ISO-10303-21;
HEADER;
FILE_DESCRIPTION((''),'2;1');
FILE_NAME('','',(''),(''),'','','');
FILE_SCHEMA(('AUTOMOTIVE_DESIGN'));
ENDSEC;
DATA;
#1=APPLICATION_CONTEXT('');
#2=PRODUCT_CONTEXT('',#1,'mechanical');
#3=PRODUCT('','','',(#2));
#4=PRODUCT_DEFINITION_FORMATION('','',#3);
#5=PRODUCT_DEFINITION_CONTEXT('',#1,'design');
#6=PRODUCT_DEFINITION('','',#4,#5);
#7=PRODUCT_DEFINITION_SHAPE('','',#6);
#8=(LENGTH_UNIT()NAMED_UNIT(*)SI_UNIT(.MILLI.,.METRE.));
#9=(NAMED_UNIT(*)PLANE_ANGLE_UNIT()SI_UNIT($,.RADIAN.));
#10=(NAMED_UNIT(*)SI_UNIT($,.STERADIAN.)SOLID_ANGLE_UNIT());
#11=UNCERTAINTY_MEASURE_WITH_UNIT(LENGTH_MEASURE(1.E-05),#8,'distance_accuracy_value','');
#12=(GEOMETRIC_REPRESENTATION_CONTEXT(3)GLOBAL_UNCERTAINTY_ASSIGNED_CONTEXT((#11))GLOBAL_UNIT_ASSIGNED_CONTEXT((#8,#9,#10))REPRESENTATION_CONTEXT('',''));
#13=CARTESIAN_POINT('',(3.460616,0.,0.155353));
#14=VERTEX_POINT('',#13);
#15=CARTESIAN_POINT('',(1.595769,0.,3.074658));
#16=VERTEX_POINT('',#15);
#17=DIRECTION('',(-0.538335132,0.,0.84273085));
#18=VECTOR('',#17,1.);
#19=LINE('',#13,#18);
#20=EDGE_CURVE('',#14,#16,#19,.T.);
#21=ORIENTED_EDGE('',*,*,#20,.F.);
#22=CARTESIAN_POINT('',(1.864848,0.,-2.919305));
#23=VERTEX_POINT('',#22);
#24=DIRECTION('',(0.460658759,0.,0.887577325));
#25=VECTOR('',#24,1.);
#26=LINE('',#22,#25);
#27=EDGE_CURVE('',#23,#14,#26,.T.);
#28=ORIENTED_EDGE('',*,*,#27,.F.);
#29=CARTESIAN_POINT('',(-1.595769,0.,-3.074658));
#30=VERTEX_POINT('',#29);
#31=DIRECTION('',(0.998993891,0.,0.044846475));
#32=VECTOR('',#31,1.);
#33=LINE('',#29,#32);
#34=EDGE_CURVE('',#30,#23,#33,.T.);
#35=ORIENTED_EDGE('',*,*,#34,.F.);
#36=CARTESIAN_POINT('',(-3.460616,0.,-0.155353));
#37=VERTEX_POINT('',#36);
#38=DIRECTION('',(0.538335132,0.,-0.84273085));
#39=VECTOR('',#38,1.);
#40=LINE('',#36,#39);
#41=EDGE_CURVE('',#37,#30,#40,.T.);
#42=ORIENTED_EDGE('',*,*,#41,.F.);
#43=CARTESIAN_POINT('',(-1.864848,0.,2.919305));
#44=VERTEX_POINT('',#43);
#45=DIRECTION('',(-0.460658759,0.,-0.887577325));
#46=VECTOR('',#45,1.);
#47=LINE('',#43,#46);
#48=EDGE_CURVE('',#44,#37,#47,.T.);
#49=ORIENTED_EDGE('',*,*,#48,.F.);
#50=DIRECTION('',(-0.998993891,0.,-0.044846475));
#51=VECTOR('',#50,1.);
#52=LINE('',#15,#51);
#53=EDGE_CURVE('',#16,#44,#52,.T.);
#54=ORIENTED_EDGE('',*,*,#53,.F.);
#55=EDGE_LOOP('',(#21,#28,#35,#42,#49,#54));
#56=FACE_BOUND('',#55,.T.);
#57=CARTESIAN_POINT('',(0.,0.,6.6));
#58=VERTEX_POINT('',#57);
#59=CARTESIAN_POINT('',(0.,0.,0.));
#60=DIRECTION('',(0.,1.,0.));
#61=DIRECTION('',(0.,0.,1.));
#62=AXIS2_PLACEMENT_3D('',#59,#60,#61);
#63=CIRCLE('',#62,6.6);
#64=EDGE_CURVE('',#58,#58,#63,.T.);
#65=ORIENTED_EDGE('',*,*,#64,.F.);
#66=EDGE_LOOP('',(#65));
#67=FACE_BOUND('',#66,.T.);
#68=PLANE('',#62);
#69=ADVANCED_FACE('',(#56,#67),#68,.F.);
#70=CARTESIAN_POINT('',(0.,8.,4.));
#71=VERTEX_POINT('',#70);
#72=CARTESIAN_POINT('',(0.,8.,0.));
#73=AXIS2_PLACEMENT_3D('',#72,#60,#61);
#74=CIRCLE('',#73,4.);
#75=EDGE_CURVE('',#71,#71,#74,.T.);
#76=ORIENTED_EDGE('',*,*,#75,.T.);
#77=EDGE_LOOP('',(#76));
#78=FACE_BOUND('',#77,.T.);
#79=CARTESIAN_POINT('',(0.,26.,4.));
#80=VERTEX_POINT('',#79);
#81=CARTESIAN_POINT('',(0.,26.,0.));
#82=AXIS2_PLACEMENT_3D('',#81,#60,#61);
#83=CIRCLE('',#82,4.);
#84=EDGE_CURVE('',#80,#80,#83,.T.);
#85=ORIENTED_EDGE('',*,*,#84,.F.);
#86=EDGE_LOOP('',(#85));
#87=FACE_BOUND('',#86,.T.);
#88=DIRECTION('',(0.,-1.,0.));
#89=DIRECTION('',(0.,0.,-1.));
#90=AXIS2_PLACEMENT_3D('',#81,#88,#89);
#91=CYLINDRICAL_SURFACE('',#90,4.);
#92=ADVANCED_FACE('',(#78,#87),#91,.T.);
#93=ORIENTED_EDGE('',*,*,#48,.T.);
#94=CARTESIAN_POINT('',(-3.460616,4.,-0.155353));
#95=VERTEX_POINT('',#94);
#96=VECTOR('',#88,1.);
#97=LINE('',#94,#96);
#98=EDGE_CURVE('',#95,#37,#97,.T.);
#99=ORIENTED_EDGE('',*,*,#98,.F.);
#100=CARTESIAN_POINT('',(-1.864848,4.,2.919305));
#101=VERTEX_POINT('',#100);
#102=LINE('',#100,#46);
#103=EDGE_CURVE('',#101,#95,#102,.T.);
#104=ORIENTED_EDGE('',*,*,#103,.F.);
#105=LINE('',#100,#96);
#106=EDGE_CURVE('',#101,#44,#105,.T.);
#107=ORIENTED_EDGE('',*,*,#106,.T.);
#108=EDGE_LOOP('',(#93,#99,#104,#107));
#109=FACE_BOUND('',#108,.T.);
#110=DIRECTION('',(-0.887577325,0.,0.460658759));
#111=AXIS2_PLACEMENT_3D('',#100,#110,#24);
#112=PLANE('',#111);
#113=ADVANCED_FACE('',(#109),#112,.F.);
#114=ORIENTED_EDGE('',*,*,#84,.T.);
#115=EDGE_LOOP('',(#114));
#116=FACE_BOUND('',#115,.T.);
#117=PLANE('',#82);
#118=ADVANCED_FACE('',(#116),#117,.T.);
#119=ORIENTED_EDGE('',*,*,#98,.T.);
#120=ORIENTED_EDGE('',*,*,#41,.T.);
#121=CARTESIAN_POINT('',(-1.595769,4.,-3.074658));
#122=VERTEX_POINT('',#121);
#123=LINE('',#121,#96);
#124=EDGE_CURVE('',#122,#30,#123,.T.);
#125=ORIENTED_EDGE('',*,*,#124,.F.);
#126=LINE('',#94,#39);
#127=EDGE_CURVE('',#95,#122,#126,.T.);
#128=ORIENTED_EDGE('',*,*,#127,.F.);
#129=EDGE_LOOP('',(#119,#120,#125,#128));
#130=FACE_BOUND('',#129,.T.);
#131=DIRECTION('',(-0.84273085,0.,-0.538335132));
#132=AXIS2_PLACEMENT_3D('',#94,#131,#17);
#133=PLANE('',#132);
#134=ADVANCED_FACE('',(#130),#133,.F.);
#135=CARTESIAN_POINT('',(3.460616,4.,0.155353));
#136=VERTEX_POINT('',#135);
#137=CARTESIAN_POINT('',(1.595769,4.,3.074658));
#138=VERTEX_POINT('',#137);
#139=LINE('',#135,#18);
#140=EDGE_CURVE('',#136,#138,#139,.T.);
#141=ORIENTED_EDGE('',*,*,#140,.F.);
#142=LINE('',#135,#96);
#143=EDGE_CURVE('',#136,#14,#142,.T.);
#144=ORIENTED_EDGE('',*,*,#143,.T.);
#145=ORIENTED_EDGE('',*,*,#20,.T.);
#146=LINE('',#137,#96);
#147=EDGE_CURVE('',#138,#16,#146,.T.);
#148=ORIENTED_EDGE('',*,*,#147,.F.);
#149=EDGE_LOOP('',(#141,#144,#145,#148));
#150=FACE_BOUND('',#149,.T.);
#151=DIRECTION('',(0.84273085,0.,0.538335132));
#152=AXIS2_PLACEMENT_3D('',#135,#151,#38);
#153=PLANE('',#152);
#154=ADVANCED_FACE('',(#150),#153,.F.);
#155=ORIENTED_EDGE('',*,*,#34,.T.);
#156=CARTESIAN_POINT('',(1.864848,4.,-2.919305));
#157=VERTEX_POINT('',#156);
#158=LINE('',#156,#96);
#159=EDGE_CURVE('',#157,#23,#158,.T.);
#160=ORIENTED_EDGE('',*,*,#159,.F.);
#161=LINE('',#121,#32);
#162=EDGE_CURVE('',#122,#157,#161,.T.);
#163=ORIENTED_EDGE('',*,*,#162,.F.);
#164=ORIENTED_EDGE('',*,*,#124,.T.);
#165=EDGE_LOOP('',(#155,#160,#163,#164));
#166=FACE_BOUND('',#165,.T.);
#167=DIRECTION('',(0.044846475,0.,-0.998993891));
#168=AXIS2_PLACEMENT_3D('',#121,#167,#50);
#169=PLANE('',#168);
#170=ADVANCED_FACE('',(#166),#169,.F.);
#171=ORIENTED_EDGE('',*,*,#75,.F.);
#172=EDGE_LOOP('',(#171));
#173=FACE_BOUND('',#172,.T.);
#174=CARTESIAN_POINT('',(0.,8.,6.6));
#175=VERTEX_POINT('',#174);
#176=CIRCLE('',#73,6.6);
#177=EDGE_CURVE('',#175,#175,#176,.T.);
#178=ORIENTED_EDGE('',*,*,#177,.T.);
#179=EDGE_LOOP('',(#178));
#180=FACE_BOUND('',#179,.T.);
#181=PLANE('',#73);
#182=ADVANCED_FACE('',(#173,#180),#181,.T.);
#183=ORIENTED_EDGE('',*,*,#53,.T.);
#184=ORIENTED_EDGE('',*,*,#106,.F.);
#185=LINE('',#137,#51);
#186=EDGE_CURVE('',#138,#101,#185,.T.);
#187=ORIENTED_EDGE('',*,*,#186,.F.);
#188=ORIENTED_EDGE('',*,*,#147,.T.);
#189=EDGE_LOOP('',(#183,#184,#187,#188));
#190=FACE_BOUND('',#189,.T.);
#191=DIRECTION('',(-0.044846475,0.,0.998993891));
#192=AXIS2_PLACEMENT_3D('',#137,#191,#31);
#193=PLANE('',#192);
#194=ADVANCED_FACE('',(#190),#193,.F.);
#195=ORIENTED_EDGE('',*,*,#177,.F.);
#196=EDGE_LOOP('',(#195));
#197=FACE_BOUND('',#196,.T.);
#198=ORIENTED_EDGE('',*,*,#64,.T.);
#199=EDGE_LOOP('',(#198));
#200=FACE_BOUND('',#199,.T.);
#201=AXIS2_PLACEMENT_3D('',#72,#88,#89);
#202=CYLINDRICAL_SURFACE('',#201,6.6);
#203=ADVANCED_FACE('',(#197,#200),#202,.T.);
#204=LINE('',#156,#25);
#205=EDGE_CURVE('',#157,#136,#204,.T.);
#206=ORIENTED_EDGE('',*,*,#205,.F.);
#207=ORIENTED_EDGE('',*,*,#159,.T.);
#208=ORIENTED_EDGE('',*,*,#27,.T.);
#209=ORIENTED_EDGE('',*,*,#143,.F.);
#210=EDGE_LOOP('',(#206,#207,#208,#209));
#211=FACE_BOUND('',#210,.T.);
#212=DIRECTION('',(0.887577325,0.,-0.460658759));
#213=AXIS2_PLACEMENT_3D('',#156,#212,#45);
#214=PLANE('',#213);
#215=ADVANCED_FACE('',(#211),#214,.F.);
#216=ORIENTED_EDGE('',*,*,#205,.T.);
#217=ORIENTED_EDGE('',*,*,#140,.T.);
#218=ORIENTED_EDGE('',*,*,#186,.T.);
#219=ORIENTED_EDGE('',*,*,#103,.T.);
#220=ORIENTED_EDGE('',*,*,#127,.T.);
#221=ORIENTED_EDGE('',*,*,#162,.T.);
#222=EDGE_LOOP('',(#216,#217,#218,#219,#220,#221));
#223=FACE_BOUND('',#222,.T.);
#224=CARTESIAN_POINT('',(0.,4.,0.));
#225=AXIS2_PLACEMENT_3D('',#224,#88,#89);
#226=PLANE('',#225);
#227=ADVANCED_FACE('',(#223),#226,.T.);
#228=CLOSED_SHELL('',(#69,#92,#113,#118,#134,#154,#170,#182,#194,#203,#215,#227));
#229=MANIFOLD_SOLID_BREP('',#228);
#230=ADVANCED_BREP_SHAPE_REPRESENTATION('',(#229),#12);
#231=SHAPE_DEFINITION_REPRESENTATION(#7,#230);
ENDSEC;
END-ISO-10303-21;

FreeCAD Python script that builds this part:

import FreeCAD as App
import Part
import Sketcher

doc = App.newDocument("Part")
body = doc.addObject("PartDesign::Body", "Body")

# Sketch on XZ plane
sketch1 = doc.addObject("Sketcher::SketchObject", "Sketch")
body.addObject(sketch1)
sketch1.AttachmentSupport = (doc.XZ_Plane, [""])
sketch1.MapMode = "FlatFace"
sketch1.addGeometry(Part.Circle(App.Vector(0, 0, 0), App.Vector(0, 0, 1), 7), False)
sketch1.addConstraint([
    Sketcher.Constraint("Coincident", 0, 3, -1, 1),
    Sketcher.Constraint("Diameter", 0, 13.2),
])
pad1 = doc.addObject("PartDesign::Pad", "Pad")
body.addObject(pad1)
pad1.Profile = sketch1
pad1.Length = 8
pad1.Reversed = True

# Sketch on XZ plane
sketch2 = doc.addObject("Sketcher::SketchObject", "Sketch001")
body.addObject(sketch2)
sketch2.AttachmentSupport = (doc.XZ_Plane, [""])
sketch2.MapMode = "FlatFace"
sketch2.AttachmentOffset = App.Placement(App.Vector(0, 0, -8), App.Rotation())
sketch2.addGeometry(Part.Circle(App.Vector(0, 0, 0), App.Vector(0, 0, 1), 4), False)
sketch2.addConstraint([
    Sketcher.Constraint("Coincident", 0, 3, -1, 1),
    Sketcher.Constraint("Diameter", 0, 8.0),
])
pad2 = doc.addObject("PartDesign::Pad", "Pad001")
body.addObject(pad2)
pad2.Profile = sketch2
pad2.Length = 18
pad2.Reversed = True

# Sketch on XZ plane
sketch3 = doc.addObject("Sketcher::SketchObject", "Sketch002")
body.addObject(sketch3)
sketch3.AttachmentSupport = (doc.XZ_Plane, [""])
sketch3.MapMode = "FlatFace"
sketch3.addGeometry([
    Part.LineSegment(App.Vector(3.5, 0.2, 0), App.Vector(1.6, 3.1, 0)),  # 0
    Part.LineSegment(App.Vector(1.6, 3.1, 0), App.Vector(-1.9, 2.9, 0)),  # 1
    Part.LineSegment(App.Vector(-1.9, 2.9, 0), App.Vector(-3.5, -0.2, 0)),  # 2
    Part.LineSegment(App.Vector(-3.5, -0.2, 0), App.Vector(-1.6, -3.1, 0)),  # 3
    Part.LineSegment(App.Vector(-1.6, -3.1, 0), App.Vector(1.9, -2.9, 0)),  # 4
    Part.LineSegment(App.Vector(1.9, -2.9, 0), App.Vector(3.5, 0.2, 0)),  # 5
], False)
sketch3.addConstraint([
    Sketcher.Constraint("Coincident", 0, 2, 1, 1),
    Sketcher.Constraint("Coincident", 1, 2, 2, 1),
    Sketcher.Constraint("Coincident", 2, 2, 3, 1),
    Sketcher.Constraint("Coincident", 3, 2, 4, 1),
    Sketcher.Constraint("Coincident", 4, 2, 5, 1),
    Sketcher.Constraint("Coincident", 5, 2, 0, 1),
    Sketcher.Constraint("Symmetric", 0, 2, 3, 2, -1, 1),
    Sketcher.Constraint("Symmetric", 1, 2, 4, 2, -1, 1),
    Sketcher.Constraint("Symmetric", 2, 2, 5, 2, -1, 1),
    Sketcher.Constraint("Equal", 0, 1),
    Sketcher.Constraint("Equal", 1, 2),
    Sketcher.Constraint("Distance", 0, 3.464102),
    Sketcher.Constraint("DistanceX", -1, 1, 0, 2, 1.595769),
    Sketcher.Constraint("DistanceY", -1, 1, 0, 2, 3.074658),
    Sketcher.Constraint("DistanceX", 2, 2, 1, 2, 1.595769),
])
pocket1 = doc.addObject("PartDesign::Pocket", "Pocket")
body.addObject(pocket1)
pocket1.Profile = sketch3
pocket1.Length = 4

doc.recompute()
